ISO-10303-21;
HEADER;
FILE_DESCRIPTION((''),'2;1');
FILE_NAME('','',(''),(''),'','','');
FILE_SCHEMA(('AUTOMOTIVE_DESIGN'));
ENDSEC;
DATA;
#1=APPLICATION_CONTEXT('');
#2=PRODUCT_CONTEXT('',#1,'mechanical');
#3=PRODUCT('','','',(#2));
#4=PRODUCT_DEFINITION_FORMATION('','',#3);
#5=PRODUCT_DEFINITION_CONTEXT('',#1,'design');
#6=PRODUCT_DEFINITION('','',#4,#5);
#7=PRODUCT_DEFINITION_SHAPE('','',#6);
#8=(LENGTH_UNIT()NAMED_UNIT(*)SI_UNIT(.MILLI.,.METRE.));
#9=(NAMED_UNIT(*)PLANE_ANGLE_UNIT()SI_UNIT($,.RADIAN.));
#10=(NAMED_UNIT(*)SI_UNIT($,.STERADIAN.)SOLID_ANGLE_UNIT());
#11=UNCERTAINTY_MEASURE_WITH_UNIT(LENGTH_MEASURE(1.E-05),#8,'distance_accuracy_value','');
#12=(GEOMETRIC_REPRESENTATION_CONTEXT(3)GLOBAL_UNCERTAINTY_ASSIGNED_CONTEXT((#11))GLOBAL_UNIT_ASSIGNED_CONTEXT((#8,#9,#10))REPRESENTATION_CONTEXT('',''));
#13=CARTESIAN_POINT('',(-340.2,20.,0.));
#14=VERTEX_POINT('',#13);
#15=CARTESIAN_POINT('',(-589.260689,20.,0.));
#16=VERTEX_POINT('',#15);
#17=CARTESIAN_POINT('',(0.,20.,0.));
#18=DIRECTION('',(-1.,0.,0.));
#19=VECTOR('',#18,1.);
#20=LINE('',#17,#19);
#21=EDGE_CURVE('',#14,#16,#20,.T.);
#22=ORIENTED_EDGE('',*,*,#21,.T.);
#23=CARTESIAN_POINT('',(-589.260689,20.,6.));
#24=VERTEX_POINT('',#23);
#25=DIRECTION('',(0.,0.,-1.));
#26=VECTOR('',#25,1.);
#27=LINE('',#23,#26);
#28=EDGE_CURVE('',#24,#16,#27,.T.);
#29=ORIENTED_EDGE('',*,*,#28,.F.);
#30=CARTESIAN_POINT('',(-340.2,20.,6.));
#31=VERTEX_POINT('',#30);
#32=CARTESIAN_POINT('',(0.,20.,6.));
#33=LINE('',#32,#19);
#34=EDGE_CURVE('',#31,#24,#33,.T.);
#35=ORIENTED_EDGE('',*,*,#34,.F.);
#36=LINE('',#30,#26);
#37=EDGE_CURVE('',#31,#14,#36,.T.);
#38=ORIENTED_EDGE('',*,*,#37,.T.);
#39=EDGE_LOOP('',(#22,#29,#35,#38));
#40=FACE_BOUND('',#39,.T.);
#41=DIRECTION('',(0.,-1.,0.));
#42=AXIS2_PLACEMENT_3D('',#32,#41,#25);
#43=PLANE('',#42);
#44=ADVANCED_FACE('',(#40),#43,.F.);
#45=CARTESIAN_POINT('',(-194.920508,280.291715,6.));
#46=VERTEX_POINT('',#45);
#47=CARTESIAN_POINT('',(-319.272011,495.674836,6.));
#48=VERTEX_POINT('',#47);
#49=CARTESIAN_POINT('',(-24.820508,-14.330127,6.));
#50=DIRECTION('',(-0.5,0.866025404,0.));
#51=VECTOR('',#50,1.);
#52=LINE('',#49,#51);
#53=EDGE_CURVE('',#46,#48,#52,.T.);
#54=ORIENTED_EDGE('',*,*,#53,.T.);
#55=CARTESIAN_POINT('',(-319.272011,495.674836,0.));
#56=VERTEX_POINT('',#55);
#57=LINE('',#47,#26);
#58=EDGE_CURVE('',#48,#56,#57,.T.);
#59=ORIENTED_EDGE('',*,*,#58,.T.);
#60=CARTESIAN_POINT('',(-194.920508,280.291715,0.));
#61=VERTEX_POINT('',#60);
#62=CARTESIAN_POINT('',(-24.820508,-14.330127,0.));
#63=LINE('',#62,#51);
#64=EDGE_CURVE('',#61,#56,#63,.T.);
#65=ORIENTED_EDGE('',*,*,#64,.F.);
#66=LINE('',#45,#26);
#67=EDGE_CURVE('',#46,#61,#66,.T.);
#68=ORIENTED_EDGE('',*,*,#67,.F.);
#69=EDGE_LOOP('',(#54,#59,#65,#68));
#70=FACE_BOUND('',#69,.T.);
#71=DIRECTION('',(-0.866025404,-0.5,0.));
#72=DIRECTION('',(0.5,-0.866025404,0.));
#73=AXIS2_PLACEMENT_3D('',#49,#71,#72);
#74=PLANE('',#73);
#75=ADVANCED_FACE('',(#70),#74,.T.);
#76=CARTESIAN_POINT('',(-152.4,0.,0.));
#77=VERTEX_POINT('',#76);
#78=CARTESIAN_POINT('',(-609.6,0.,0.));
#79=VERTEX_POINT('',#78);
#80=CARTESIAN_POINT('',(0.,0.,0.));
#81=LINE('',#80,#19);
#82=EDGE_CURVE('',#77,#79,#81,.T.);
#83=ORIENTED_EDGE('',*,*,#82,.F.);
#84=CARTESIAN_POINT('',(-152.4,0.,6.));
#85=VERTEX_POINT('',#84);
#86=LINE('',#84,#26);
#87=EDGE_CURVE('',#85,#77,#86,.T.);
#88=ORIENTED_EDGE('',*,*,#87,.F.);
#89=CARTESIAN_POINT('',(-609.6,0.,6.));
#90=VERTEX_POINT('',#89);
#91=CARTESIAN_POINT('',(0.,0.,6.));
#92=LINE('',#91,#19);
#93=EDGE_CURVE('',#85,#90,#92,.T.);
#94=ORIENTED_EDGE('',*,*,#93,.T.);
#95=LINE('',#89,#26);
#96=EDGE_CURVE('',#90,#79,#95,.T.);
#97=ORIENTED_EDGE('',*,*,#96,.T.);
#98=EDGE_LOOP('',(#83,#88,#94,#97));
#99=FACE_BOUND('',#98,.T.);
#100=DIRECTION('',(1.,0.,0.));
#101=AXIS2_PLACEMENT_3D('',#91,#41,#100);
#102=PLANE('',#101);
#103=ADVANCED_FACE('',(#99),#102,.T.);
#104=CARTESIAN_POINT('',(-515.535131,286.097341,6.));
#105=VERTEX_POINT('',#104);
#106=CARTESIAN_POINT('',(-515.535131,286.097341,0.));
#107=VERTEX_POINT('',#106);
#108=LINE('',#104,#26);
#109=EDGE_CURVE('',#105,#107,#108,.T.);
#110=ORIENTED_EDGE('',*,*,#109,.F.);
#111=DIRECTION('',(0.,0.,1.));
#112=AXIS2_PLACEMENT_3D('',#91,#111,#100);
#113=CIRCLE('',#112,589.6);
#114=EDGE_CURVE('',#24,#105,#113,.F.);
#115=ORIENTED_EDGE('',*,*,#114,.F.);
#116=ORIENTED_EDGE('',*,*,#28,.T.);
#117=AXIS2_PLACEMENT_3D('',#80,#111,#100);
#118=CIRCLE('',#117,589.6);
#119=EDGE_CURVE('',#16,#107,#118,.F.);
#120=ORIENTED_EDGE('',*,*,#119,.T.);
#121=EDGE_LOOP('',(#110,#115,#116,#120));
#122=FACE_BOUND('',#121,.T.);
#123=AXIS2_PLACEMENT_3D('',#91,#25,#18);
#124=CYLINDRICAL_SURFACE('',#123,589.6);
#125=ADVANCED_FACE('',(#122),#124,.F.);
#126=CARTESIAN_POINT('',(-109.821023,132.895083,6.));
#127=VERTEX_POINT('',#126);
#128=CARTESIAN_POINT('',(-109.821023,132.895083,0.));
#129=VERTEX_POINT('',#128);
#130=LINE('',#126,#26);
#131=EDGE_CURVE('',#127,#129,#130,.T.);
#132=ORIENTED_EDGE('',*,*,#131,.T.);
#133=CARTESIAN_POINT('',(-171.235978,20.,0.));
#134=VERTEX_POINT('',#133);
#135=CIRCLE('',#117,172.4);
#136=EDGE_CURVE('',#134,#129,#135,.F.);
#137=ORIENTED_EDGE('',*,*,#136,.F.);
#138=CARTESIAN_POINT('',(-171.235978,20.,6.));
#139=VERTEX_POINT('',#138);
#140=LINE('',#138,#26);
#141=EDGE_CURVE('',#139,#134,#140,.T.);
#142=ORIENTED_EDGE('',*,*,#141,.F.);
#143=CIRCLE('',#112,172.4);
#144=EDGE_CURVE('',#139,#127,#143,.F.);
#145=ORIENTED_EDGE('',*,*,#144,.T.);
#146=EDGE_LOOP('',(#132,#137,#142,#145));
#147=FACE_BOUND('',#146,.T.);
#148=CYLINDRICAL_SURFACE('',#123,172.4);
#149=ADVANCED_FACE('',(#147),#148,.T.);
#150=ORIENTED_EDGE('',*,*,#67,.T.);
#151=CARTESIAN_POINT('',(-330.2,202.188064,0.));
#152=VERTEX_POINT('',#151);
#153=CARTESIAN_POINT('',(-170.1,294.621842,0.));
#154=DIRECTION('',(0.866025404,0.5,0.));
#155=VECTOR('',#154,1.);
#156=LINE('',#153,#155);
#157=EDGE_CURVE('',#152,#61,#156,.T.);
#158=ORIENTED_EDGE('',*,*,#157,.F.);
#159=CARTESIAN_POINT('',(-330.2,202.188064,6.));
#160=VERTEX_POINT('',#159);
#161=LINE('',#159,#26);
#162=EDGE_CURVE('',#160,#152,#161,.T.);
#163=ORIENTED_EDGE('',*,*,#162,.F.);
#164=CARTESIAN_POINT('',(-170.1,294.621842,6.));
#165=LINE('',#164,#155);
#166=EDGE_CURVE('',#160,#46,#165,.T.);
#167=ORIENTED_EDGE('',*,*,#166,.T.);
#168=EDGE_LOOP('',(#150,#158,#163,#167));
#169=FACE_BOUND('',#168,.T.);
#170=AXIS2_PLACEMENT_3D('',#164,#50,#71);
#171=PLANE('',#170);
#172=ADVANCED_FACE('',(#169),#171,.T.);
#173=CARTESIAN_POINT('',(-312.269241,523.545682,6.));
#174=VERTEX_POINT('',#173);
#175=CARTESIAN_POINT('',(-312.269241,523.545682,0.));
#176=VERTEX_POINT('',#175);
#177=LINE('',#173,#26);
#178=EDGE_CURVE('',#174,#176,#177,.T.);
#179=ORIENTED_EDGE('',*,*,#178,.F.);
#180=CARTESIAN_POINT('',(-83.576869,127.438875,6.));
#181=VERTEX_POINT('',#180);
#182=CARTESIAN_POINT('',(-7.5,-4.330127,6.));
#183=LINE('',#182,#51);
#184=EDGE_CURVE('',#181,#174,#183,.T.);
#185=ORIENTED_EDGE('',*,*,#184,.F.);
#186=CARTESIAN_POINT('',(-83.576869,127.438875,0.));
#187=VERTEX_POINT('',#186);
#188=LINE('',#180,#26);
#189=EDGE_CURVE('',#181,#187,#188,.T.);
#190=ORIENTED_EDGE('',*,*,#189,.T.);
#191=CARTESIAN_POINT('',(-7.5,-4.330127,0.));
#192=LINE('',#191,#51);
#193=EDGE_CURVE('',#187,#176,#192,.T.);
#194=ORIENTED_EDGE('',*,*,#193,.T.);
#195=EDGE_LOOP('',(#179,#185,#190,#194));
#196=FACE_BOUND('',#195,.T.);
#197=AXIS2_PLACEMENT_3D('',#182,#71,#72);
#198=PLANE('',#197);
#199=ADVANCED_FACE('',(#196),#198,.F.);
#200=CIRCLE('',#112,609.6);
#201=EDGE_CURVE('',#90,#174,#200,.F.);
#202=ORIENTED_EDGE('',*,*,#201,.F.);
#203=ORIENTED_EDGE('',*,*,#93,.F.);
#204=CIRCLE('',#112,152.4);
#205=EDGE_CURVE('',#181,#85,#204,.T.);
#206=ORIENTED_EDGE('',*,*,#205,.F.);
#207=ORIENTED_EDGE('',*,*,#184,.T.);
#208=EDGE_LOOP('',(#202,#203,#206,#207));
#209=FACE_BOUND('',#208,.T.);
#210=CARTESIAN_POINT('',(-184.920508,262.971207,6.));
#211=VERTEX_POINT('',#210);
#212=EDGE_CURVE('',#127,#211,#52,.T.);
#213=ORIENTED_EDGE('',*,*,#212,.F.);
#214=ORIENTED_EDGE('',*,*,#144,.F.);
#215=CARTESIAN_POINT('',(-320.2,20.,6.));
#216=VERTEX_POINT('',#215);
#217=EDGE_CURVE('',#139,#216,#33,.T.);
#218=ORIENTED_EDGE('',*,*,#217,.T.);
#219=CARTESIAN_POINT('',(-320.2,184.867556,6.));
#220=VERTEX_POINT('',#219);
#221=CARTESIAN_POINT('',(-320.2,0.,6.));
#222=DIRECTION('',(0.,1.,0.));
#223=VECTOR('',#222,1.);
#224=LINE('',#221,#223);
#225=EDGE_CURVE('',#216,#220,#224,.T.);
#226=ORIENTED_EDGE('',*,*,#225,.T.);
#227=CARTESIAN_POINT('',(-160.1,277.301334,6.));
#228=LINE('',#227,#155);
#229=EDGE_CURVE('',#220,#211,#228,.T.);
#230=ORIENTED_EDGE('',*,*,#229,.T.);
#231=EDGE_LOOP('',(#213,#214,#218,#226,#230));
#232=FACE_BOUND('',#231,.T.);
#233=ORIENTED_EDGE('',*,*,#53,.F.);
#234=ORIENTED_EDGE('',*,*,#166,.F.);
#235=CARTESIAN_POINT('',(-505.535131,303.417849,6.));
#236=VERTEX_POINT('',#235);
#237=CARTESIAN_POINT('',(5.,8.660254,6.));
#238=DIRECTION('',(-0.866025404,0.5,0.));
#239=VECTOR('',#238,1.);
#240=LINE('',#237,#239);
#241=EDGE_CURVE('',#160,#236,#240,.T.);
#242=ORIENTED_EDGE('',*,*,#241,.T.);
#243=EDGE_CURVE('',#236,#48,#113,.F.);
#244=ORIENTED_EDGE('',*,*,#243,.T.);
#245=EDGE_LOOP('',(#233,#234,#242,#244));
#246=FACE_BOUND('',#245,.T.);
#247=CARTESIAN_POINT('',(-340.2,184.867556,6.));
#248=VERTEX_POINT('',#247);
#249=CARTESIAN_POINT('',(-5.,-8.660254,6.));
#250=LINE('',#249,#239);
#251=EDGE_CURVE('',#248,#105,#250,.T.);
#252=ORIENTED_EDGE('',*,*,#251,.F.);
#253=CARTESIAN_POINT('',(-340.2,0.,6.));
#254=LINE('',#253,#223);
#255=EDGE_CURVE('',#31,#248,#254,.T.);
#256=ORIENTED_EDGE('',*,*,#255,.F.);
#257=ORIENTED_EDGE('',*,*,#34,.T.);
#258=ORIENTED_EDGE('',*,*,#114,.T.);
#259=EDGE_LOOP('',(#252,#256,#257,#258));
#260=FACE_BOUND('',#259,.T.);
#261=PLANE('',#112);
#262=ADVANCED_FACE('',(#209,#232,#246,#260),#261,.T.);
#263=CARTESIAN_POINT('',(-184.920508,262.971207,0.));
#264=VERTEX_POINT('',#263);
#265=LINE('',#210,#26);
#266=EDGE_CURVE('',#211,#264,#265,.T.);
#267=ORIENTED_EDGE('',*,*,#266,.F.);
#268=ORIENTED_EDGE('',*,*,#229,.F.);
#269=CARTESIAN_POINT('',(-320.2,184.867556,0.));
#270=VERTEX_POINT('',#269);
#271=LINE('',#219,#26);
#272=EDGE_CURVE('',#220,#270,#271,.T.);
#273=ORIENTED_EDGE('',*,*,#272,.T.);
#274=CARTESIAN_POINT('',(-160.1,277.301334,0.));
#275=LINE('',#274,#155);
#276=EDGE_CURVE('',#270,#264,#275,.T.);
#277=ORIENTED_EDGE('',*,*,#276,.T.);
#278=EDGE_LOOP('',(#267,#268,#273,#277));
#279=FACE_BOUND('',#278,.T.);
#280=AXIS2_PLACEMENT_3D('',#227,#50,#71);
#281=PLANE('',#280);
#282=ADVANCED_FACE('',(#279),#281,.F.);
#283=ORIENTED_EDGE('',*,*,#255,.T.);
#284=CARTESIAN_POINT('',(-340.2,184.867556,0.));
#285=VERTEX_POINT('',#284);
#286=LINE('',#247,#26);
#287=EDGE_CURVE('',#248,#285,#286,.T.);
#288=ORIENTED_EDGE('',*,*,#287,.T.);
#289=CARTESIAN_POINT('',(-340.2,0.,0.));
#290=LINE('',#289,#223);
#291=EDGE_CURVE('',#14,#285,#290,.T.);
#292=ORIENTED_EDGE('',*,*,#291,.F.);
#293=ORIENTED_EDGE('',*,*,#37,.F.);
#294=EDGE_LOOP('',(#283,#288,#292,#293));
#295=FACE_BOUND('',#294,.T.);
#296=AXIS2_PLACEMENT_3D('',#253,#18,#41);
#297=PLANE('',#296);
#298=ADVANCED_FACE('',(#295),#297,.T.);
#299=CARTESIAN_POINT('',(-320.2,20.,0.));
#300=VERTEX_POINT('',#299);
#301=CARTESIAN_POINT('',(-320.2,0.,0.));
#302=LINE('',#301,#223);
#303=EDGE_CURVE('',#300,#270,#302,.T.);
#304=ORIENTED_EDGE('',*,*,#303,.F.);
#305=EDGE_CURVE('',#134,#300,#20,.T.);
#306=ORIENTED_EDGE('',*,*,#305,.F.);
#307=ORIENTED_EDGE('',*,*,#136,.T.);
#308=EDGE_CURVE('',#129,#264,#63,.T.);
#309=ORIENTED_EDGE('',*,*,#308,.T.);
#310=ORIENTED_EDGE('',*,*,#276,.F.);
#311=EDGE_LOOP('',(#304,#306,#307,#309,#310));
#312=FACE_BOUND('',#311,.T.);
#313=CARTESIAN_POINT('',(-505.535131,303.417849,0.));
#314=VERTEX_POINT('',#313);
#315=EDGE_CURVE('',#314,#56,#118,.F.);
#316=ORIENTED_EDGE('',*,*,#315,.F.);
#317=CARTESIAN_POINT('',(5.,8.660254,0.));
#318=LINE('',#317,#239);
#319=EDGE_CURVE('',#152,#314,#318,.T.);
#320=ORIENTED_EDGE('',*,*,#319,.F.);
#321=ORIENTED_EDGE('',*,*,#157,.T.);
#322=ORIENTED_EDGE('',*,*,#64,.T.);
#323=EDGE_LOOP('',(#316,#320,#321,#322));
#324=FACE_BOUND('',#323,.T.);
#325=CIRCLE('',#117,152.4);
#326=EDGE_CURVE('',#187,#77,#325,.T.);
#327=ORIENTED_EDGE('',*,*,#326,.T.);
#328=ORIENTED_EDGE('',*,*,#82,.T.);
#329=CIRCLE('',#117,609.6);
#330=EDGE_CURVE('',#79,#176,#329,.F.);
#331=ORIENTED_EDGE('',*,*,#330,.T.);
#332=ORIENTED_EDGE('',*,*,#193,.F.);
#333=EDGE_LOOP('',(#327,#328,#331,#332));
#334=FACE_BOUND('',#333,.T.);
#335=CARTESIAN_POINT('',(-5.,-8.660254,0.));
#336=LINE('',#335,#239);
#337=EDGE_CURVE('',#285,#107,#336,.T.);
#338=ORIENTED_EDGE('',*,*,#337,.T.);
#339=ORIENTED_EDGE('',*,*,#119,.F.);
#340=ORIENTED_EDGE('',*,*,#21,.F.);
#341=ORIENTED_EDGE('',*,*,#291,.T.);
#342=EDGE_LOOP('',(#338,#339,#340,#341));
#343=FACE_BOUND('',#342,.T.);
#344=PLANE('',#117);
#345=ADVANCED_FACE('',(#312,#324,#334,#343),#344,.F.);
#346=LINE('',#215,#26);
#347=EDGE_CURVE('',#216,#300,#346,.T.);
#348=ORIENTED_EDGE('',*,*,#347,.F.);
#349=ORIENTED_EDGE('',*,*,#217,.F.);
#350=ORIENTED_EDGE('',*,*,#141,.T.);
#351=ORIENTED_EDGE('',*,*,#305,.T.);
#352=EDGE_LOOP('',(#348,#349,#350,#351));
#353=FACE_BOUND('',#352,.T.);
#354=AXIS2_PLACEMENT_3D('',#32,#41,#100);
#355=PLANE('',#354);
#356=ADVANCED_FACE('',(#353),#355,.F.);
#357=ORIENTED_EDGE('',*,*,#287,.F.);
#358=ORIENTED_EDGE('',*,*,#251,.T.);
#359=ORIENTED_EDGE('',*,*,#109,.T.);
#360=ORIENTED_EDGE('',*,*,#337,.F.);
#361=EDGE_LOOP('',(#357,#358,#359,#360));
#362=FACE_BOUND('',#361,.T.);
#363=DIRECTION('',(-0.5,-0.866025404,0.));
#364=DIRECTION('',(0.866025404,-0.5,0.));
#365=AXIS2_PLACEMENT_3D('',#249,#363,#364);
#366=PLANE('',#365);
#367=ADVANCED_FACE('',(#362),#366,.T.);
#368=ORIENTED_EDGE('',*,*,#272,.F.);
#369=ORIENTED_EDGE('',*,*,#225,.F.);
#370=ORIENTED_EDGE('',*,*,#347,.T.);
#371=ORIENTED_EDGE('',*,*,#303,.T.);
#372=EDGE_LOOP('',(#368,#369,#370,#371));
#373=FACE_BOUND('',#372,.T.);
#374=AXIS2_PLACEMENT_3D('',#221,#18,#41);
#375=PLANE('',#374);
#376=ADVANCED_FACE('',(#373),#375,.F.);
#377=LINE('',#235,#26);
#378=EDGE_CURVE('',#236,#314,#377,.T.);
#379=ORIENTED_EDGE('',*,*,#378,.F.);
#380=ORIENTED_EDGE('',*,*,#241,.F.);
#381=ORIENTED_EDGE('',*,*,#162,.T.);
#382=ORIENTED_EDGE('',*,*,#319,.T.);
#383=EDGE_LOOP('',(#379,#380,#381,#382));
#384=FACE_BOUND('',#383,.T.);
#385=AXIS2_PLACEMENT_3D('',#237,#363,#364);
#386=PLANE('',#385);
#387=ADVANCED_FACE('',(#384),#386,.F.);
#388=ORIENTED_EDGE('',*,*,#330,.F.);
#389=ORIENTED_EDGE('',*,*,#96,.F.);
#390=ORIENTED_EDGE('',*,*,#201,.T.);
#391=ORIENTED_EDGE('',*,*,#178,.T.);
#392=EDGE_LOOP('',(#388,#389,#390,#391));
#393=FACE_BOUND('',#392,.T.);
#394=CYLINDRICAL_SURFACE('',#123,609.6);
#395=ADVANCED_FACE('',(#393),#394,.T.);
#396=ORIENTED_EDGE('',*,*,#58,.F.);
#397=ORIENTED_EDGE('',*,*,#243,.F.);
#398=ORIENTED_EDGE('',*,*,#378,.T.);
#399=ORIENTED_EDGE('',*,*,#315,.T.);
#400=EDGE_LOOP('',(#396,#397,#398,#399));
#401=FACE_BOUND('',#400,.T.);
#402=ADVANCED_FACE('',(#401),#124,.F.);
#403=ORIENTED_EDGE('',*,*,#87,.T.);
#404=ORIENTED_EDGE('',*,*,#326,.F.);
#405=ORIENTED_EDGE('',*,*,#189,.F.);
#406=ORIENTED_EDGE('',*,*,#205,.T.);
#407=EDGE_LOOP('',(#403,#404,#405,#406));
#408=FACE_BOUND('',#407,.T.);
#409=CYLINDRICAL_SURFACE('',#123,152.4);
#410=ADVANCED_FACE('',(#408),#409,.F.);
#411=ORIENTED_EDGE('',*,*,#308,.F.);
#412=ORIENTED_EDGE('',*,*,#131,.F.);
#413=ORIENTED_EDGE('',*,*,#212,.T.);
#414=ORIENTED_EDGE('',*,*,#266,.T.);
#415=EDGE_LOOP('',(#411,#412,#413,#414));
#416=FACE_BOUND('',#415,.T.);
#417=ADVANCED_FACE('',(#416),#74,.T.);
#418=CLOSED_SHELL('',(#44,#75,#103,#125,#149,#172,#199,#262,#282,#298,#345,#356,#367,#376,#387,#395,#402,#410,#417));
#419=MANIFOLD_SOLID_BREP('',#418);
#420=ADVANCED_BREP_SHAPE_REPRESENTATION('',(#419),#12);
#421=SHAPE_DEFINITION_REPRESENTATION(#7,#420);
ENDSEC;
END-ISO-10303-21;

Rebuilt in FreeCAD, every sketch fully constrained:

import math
import FreeCAD as App
import Part
import Sketcher
from FreeCAD import Vector
Q = App.Units.Quantity

doc = App.newDocument("Part")
params = doc.addObject("Spreadsheet::Sheet", "Params")
for row, (alias, value) in enumerate([
    ("sketch1_radius", "152.4 mm"),
    ("sketch1_radius2", "609.6 mm"),
    ("sketch1_radius3", "172.4 mm"),
    ("sketch1_radius4", "589.6 mm"),
    ("pad1_length", "6 mm"),
], start=1):
    params.set(f"A{row}", alias)
    params.set(f"B{row}", "=" + value)
    params.setAlias(f"B{row}", alias)

body = doc.addObject("PartDesign::Body", "Body")

sketch1 = body.newObject("Sketcher::SketchObject", "Sketch")
sketch1.AttachmentSupport = (doc.getObject("XY_Plane"), [""])
sketch1.MapMode = "FlatFace"
sketch1.addGeometry(Part.ArcOfCircle(Part.Circle(Vector(0, 0, 0), Vector(0, 0, 1), 152), math.radians(123), math.radians(180)), False)
sketch1.addGeometry(Part.LineSegment(Vector(-84, 127, 0), Vector(-312, 524, 0)), False)
sketch1.addGeometry(Part.ArcOfCircle(Part.Circle(Vector(0, 0, 0), Vector(0, 0, 1), 610), math.radians(121), math.radians(180)), False)
sketch1.addGeometry(Part.LineSegment(Vector(-610, 0, 0), Vector(-152, 0, 0)), False)
sketch1.addGeometry(Part.ArcOfCircle(Part.Circle(Vector(0, 0, 0), Vector(0, 0, 1), 172), math.radians(153), math.radians(173)), False)
sketch1.addGeometry(Part.LineSegment(Vector(-171, 20, 0), Vector(-320, 20, 0)), False)
sketch1.addGeometry(Part.LineSegment(Vector(-320, 20, 0), Vector(-320, 185, 0)), False)
sketch1.addGeometry(Part.LineSegment(Vector(-320, 185, 0), Vector(-310, 191, 0)), False)
sketch1.addGeometry(Part.LineSegment(Vector(-310, 191, 0), Vector(-185, 263, 0)), False)
sketch1.addGeometry(Part.LineSegment(Vector(-185, 263, 0), Vector(-110, 133, 0)), False)
sketch1.addGeometry(Part.ArcOfCircle(Part.Circle(Vector(0, 0, 0), Vector(0, 0, 1), 172), math.radians(129.57), math.radians(146.67)), False)
sketch1.addGeometry(Part.ArcOfCircle(Part.Circle(Vector(0, 0, 0), Vector(0, 0, 1), 172), math.radians(146.67), math.radians(153.33)), False)
sketch1.addGeometry(Part.LineSegment(Vector(-340, 20, 0), Vector(-589, 20, 0)), False)
sketch1.addGeometry(Part.ArcOfCircle(Part.Circle(Vector(0, 0, 0), Vector(0, 0, 1), 590), math.radians(151), math.radians(178)), False)
sketch1.addGeometry(Part.LineSegment(Vector(-516, 286, 0), Vector(-340, 185, 0)), False)
sketch1.addGeometry(Part.LineSegment(Vector(-340, 185, 0), Vector(-340, 20, 0)), False)
sketch1.addGeometry(Part.LineSegment(Vector(-330, 202, 0), Vector(-506, 303, 0)), False)
sketch1.addGeometry(Part.ArcOfCircle(Part.Circle(Vector(0, 0, 0), Vector(0, 0, 1), 590), math.radians(123), math.radians(149)), False)
sketch1.addGeometry(Part.LineSegment(Vector(-319, 496, 0), Vector(-195, 280, 0)), False)
sketch1.addGeometry(Part.LineSegment(Vector(-195, 280, 0), Vector(-330, 202, 0)), False)
sketch1.addConstraint(Sketcher.Constraint("Coincident", 0, 1, 1, 1))
sketch1.addConstraint(Sketcher.Constraint("Coincident", 1, 2, 2, 1))
sketch1.addConstraint(Sketcher.Constraint("Coincident", 2, 2, 3, 1))
sketch1.addConstraint(Sketcher.Constraint("Coincident", 3, 2, 0, 2))
sketch1.addConstraint(Sketcher.Constraint("Coincident", 4, 2, 5, 1))
sketch1.addConstraint(Sketcher.Constraint("Coincident", 5, 2, 6, 1))
sketch1.addConstraint(Sketcher.Constraint("Coincident", 6, 2, 7, 1))
sketch1.addConstraint(Sketcher.Constraint("Coincident", 7, 2, 8, 1))
sketch1.addConstraint(Sketcher.Constraint("Coincident", 8, 2, 9, 1))
sketch1.addConstraint(Sketcher.Constraint("Coincident", 9, 2, 10, 1))
sketch1.addConstraint(Sketcher.Constraint("Tangent", 10, 2, 11, 1))
sketch1.addConstraint(Sketcher.Constraint("Tangent", 11, 2, 4, 1))
sketch1.addConstraint(Sketcher.Constraint("Coincident", 12, 2, 13, 2))
sketch1.addConstraint(Sketcher.Constraint("Coincident", 13, 1, 14, 1))
sketch1.addConstraint(Sketcher.Constraint("Coincident", 14, 2, 15, 1))
sketch1.addConstraint(Sketcher.Constraint("Coincident", 15, 2, 12, 1))
sketch1.addConstraint(Sketcher.Constraint("Coincident", 16, 2, 17, 2))
sketch1.addConstraint(Sketcher.Constraint("Coincident", 17, 1, 18, 1))
sketch1.addConstraint(Sketcher.Constraint("Coincident", 18, 2, 19, 1))
sketch1.addConstraint(Sketcher.Constraint("Coincident", 19, 2, 16, 1))
sketch1.addConstraint(Sketcher.Constraint("Horizontal", 3))
sketch1.addConstraint(Sketcher.Constraint("Horizontal", 5))
sketch1.addConstraint(Sketcher.Constraint("Vertical", 6))
sketch1.addConstraint(Sketcher.Constraint("Horizontal", 12))
sketch1.addConstraint(Sketcher.Constraint("Vertical", 15))
sketch1.addConstraint(Sketcher.Constraint("Coincident", 0, 3, -1, 1))
sketch1.addConstraint(Sketcher.Constraint("Coincident", 2, 3, -1, 1))
sketch1.addConstraint(Sketcher.Constraint("Coincident", 4, 3, -1, 1))
sketch1.addConstraint(Sketcher.Constraint("Coincident", 10, 3, -1, 1))
sketch1.addConstraint(Sketcher.Constraint("Coincident", 13, 3, -1, 1))
sketch1.addConstraint(Sketcher.Constraint("Coincident", 17, 3, -1, 1))
sketch1.addConstraint(Sketcher.Constraint("Equal", 13, 17))
sketch1.addConstraint(Sketcher.Constraint("PointOnObject", 3, 2, -1))
sketch1.addConstraint(Sketcher.Constraint("Perpendicular", 1, 7))
sketch1.addConstraint(Sketcher.Constraint("Parallel", 7, 8))
sketch1.addConstraint(Sketcher.Constraint("Perpendicular", 8, 9))
sketch1.addConstraint(Sketcher.Constraint("Parallel", 14, 16))
sketch1.addConstraint(Sketcher.Constraint("Parallel", 9, 18))
sketch1.addConstraint(Sketcher.Constraint("Perpendicular", 18, 19))
sketch1.addConstraint(Sketcher.Constraint("Horizontal", 5, 2, 12, 2))
sketch1.addConstraint(Sketcher.Constraint("Horizontal", 6, 2, 14, 2))
sketch1.addConstraint(Sketcher.Constraint("Equal", 14, 16))
sketch1.addConstraint(Sketcher.Constraint("Radius", 0, 152.4))
sketch1.addConstraint(Sketcher.Constraint("Radius", 2, 609.6))
sketch1.addConstraint(Sketcher.Constraint("Radius", 4, 172.4))
sketch1.addConstraint(Sketcher.Constraint("Radius", 13, 589.6))
sketch1.addConstraint(Sketcher.Constraint("Angle", 1, Q("120 deg")))
sketch1.addConstraint(Sketcher.Constraint("Angle", 14, Q("-30 deg")))
sketch1.addConstraint(Sketcher.Constraint("DistanceY", -1, 1, 4, 2, 20.0))
sketch1.addConstraint(Sketcher.Constraint("DistanceX", 6, 2, 7, 2, 10.0))
sketch1.addConstraint(Sketcher.Constraint("DistanceX", 11, 2, 10, 2, 10.0))
sketch1.addConstraint(Sketcher.Constraint("DistanceX", 14, 2, 6, 2, 20.0))
sketch1.addConstraint(Sketcher.Constraint("DistanceX", 18, 2, 8, 2, 10.0))
sketch1.addConstraint(Sketcher.Constraint("DistanceX", 19, 2, 6, 2, 10.0))
sketch1.addConstraint(Sketcher.Constraint("DistanceX", 5, 2, -1, 1, 320.2))
sketch1.addConstraint(Sketcher.Constraint("DistanceX", 10, 2, -1, 1, 144.051401))
sketch1.addConstraint(Sketcher.Constraint("Distance", 9, 150.198971))
sketch1.addConstraint(Sketcher.Constraint("Distance", 14, 202.45957))
sketch1.addConstraint(Sketcher.Constraint("DistanceX", 0, 1, -1, 1, 83.576869))
sketch1.setExpression("Constraints[42]", "Params.sketch1_radius")
sketch1.setExpression("Constraints[43]", "Params.sketch1_radius2")
sketch1.setExpression("Constraints[44]", "Params.sketch1_radius3")
sketch1.setExpression("Constraints[45]", "Params.sketch1_radius4")
pad1 = body.newObject("PartDesign::Pad", "Pad")
pad1.Profile = sketch1
pad1.setExpression("Length", "Params.pad1_length")

doc.recompute()
